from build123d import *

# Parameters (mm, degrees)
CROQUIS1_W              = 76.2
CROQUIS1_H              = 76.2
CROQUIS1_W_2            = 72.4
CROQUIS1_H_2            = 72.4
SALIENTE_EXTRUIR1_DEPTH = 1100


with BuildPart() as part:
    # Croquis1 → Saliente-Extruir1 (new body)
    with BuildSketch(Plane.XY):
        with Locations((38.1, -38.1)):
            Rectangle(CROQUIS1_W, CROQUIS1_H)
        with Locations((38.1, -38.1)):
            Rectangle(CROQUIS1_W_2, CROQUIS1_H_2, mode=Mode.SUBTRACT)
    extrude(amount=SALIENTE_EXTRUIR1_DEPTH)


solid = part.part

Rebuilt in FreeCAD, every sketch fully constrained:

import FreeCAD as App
import Part
import Sketcher

V = App.Vector
Q = App.Units.Quantity


def add_polygon(sketch, points):
    """Adds a closed chain of lines whose ends are joined by coincident constraints."""
    first, n = sketch.GeometryCount, len(points)
    for a, b in zip(points, points[1:] + points[:1]):
        sketch.addGeometry(Part.LineSegment(App.Vector(*a, 0), App.Vector(*b, 0)), False)
    for i in range(n):
        sketch.addConstraint(Sketcher.Constraint("Coincident", first + i, 2, first + (i + 1) % n, 1))

doc = App.newDocument("Part")
body = doc.addObject("PartDesign::Body", "Body")

# Sketch on XY plane
sketch1 = body.newObject("Sketcher::SketchObject", "Sketch")
sketch1.AttachmentSupport = (doc.getObject("XY_Plane"), [""])
sketch1.MapMode = "FlatFace"
add_polygon(sketch1, [(0, 0), (0, -76), (76, -76), (76, 0)])  # lines 0-3
add_polygon(sketch1, [(74, -74), (2, -74), (2, -2), (74, -2)])  # lines 4-7
sketch1.addConstraint([
    Sketcher.Constraint("Vertical", 0),
    Sketcher.Constraint("Horizontal", 1),
    Sketcher.Constraint("Vertical", 2),
    Sketcher.Constraint("Horizontal", 3),
    Sketcher.Constraint("Horizontal", 4),
    Sketcher.Constraint("Vertical", 5),
    Sketcher.Constraint("Horizontal", 6),
    Sketcher.Constraint("Vertical", 7),
    Sketcher.Constraint("Coincident", 3, 2, -1, 1),
    Sketcher.Constraint("Equal", 3, 0),
    Sketcher.Constraint("Equal", 6, 5),
    Sketcher.Constraint("DistanceX", 1, 1, 1, 2, Q("76.2 mm")),
    Sketcher.Constraint("DistanceX", 4, 2, 4, 1, Q("72.4 mm")),
    Sketcher.Constraint("DistanceX", -1, 1, 4, 2, Q("1.9 mm")),
    Sketcher.Constraint("DistanceY", 4, 2, -1, 1, Q("74.3 mm")),
])
pad1 = body.newObject("PartDesign::Pad", "Pad")
pad1.Profile = sketch1
pad1.Length = 1100

doc.recompute()
